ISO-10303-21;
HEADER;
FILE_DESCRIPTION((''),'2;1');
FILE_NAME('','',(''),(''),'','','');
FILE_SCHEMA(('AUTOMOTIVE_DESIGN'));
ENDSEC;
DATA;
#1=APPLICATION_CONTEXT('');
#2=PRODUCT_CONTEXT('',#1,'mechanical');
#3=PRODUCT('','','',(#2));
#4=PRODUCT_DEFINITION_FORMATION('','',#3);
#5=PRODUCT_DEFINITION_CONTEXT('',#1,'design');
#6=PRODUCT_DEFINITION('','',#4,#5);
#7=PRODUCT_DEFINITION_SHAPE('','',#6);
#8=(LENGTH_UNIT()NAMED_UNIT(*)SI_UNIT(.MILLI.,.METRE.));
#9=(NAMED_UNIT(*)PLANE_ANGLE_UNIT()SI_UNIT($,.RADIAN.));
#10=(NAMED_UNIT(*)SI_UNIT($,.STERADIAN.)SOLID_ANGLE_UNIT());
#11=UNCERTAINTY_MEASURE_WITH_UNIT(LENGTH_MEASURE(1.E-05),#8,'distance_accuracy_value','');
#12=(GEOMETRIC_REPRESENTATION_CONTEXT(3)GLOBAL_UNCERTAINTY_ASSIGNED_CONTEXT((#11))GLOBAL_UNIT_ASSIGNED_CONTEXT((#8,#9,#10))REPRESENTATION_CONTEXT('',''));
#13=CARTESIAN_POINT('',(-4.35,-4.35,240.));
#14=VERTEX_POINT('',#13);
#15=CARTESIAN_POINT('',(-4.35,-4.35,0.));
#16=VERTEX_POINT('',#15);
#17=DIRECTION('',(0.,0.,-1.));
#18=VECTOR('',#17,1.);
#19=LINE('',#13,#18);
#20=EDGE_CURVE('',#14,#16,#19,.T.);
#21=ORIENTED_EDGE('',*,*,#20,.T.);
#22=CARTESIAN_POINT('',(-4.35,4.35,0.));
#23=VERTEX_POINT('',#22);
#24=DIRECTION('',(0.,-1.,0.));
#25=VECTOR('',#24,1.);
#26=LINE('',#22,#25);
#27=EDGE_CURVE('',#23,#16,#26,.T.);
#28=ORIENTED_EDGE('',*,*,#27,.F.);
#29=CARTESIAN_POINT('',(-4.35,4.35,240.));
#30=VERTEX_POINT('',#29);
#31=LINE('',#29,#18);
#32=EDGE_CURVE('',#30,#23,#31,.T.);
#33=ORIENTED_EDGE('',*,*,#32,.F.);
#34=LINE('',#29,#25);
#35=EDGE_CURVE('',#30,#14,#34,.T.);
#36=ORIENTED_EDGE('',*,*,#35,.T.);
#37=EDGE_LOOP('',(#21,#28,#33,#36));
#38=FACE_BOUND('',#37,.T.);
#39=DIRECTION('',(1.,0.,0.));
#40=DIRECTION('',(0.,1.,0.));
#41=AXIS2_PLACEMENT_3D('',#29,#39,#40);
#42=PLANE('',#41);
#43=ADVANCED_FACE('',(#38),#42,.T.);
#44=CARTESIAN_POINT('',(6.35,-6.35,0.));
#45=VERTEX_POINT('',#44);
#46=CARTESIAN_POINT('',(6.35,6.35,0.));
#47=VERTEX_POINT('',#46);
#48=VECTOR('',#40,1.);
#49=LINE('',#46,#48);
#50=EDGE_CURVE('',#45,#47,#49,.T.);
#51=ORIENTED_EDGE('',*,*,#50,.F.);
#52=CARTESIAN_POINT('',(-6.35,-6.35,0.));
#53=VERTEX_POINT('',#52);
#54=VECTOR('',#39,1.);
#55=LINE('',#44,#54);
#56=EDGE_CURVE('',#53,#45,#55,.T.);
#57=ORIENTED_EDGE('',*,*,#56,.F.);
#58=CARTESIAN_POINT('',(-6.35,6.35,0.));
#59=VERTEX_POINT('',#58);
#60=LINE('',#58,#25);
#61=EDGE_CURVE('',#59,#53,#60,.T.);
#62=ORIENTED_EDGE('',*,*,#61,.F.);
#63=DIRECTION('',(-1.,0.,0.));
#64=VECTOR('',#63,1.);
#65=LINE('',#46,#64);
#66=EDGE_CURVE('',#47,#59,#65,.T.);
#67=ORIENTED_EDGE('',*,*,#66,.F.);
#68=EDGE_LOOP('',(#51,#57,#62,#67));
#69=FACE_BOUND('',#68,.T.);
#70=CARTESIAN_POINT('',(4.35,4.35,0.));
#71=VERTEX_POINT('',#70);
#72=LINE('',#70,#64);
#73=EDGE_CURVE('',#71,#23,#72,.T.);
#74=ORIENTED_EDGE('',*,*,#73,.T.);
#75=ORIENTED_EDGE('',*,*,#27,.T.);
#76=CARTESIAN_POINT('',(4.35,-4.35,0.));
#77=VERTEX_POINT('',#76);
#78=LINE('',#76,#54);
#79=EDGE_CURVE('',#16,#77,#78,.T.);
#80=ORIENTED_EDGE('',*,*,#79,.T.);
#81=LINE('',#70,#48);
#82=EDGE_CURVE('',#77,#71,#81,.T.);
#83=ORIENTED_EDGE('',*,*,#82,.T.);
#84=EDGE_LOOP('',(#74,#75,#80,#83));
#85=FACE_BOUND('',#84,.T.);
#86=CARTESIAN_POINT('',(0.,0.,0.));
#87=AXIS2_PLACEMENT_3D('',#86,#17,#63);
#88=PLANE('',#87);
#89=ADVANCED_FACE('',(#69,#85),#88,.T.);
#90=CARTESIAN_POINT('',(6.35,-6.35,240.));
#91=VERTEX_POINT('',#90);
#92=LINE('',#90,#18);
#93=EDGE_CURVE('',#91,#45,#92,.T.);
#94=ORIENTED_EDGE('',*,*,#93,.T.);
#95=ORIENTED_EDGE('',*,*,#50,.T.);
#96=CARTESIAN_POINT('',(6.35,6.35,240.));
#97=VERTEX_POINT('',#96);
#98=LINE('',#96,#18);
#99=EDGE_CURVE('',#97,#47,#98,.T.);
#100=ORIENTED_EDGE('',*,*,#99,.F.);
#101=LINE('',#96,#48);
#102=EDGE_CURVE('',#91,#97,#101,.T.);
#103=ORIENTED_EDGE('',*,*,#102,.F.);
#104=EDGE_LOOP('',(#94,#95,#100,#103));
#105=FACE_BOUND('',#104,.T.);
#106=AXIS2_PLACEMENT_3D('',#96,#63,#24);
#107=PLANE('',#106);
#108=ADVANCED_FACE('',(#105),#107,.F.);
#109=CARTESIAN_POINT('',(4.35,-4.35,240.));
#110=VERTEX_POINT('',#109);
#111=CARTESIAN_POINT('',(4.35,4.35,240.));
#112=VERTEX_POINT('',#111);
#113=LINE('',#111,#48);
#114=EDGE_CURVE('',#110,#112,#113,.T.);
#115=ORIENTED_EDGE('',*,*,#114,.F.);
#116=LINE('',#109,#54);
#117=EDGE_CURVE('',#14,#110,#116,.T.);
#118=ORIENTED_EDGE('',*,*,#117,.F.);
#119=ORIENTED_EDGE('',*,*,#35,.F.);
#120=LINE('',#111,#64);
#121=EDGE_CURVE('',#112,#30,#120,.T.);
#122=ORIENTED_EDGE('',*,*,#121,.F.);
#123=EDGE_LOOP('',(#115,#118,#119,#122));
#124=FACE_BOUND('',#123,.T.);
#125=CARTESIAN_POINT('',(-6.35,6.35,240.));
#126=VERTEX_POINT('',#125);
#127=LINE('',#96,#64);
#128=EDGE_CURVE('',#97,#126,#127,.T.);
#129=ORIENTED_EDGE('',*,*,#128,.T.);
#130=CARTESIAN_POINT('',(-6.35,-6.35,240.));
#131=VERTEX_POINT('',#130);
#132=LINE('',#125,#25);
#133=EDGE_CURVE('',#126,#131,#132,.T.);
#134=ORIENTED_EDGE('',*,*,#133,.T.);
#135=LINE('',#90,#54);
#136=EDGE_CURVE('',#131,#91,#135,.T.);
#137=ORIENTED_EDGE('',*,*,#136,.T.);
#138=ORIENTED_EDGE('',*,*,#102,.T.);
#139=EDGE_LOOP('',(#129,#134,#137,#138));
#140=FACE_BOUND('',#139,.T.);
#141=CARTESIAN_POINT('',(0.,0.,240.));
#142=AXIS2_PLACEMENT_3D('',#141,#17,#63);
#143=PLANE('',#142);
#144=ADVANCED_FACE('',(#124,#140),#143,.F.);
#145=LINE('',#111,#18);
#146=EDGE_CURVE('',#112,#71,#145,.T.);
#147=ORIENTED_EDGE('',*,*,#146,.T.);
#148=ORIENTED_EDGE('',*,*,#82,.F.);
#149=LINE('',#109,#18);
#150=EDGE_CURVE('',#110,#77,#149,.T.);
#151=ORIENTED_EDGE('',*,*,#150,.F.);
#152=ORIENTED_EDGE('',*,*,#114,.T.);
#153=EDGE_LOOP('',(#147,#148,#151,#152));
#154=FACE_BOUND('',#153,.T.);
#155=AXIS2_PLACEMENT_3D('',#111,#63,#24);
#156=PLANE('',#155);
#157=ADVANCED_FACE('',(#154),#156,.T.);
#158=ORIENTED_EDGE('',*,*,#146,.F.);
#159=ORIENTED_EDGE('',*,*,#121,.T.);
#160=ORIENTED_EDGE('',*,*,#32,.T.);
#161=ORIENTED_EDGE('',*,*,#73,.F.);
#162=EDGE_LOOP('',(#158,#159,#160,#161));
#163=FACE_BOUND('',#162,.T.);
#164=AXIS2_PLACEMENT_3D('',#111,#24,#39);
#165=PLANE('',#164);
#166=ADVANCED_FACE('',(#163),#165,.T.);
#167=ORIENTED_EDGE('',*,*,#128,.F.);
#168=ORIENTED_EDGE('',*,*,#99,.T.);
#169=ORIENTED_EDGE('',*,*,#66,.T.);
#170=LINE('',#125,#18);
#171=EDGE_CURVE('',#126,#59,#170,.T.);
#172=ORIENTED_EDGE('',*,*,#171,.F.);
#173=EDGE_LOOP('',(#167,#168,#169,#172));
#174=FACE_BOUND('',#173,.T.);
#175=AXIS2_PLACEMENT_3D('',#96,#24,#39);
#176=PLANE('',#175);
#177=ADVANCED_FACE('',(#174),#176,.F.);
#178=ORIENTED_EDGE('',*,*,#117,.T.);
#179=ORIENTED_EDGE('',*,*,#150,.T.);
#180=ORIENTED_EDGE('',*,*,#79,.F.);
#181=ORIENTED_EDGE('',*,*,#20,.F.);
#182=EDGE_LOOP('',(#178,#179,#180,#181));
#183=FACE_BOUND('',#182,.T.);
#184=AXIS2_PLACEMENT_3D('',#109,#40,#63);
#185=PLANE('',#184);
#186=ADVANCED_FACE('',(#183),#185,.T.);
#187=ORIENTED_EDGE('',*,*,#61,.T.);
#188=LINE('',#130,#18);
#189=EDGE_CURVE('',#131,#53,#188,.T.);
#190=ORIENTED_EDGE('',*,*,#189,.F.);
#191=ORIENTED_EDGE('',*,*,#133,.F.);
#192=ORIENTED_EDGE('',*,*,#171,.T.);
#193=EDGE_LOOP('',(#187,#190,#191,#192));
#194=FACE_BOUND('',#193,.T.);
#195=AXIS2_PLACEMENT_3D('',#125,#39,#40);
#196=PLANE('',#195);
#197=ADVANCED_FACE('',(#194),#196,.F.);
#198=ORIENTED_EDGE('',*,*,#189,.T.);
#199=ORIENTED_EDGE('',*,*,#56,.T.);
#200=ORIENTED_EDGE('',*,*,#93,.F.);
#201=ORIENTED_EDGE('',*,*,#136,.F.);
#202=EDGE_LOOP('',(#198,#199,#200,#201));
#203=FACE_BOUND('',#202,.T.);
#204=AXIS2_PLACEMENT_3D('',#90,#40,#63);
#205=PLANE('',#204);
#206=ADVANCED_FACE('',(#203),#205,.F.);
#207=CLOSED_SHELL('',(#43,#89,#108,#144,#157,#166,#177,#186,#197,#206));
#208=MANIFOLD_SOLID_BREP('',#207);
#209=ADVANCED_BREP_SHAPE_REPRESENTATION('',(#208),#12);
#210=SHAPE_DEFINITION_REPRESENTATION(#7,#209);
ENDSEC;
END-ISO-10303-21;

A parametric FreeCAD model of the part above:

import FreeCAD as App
import Part
import Sketcher
from FreeCAD import Vector
Q = App.Units.Quantity

doc = App.newDocument("Part")
body = doc.addObject("PartDesign::Body", "Body")

sketch1 = body.newObject("Sketcher::SketchObject", "Sketch")
sketch1.AttachmentSupport = (doc.getObject("XY_Plane"), [""])
sketch1.MapMode = "FlatFace"
sketch1.addGeometry(Part.LineSegment(Vector(-6.35, 6.35, 0), Vector(-6.35, -6.35, 0)), False)
sketch1.addGeometry(Part.LineSegment(Vector(-6.35, -6.35, 0), Vector(6.35, -6.35, 0)), False)
sketch1.addGeometry(Part.LineSegment(Vector(6.35, -6.35, 0), Vector(6.35, 6.35, 0)), False)
sketch1.addGeometry(Part.LineSegment(Vector(6.35, 6.35, 0), Vector(-6.35, 6.35, 0)), False)
sketch1.addGeometry(Part.LineSegment(Vector(4.35, -4.35, 0), Vector(-4.35, -4.35, 0)), False)
sketch1.addGeometry(Part.LineSegment(Vector(-4.35, -4.35, 0), Vector(-4.35, 4.35, 0)), False)
sketch1.addGeometry(Part.LineSegment(Vector(-4.35, 4.35, 0), Vector(4.35, 4.35, 0)), False)
sketch1.addGeometry(Part.LineSegment(Vector(4.35, 4.35, 0), Vector(4.35, -4.35, 0)), False)
sketch1.addConstraint(Sketcher.Constraint("Coincident", 0, 2, 1, 1))
sketch1.addConstraint(Sketcher.Constraint("Coincident", 1, 2, 2, 1))
sketch1.addConstraint(Sketcher.Constraint("Coincident", 2, 2, 3, 1))
sketch1.addConstraint(Sketcher.Constraint("Coincident", 3, 2, 0, 1))
sketch1.addConstraint(Sketcher.Constraint("Coincident", 4, 2, 5, 1))
sketch1.addConstraint(Sketcher.Constraint("Coincident", 5, 2, 6, 1))
sketch1.addConstraint(Sketcher.Constraint("Coincident", 6, 2, 7, 1))
sketch1.addConstraint(Sketcher.Constraint("Coincident", 7, 2, 4, 1))
sketch1.addConstraint(Sketcher.Constraint("Vertical", 0))
sketch1.addConstraint(Sketcher.Constraint("Horizontal", 1))
sketch1.addConstraint(Sketcher.Constraint("Vertical", 2))
sketch1.addConstraint(Sketcher.Constraint("Horizontal", 3))
sketch1.addConstraint(Sketcher.Constraint("Horizontal", 4))
sketch1.addConstraint(Sketcher.Constraint("Vertical", 5))
sketch1.addConstraint(Sketcher.Constraint("Horizontal", 6))
sketch1.addConstraint(Sketcher.Constraint("Vertical", 7))
sketch1.addConstraint(Sketcher.Constraint("Symmetric", 0, 2, 2, 2, -1, 1))
sketch1.addConstraint(Sketcher.Constraint("Symmetric", 4, 2, 6, 2, -1, 1))
sketch1.addConstraint(Sketcher.Constraint("Equal", 3, 0))
sketch1.addConstraint(Sketcher.Constraint("Equal", 6, 5))
sketch1.addConstraint(Sketcher.Constraint("DistanceX", 1, 1, 1, 2, Q("12.7 mm")))
sketch1.addConstraint(Sketcher.Constraint("DistanceX", 4, 2, 4, 1, Q("8.7 mm")))
pad1 = body.newObject("PartDesign::Pad", "Pad")
pad1.Profile = sketch1
pad1.Length = 240

doc.recompute()
